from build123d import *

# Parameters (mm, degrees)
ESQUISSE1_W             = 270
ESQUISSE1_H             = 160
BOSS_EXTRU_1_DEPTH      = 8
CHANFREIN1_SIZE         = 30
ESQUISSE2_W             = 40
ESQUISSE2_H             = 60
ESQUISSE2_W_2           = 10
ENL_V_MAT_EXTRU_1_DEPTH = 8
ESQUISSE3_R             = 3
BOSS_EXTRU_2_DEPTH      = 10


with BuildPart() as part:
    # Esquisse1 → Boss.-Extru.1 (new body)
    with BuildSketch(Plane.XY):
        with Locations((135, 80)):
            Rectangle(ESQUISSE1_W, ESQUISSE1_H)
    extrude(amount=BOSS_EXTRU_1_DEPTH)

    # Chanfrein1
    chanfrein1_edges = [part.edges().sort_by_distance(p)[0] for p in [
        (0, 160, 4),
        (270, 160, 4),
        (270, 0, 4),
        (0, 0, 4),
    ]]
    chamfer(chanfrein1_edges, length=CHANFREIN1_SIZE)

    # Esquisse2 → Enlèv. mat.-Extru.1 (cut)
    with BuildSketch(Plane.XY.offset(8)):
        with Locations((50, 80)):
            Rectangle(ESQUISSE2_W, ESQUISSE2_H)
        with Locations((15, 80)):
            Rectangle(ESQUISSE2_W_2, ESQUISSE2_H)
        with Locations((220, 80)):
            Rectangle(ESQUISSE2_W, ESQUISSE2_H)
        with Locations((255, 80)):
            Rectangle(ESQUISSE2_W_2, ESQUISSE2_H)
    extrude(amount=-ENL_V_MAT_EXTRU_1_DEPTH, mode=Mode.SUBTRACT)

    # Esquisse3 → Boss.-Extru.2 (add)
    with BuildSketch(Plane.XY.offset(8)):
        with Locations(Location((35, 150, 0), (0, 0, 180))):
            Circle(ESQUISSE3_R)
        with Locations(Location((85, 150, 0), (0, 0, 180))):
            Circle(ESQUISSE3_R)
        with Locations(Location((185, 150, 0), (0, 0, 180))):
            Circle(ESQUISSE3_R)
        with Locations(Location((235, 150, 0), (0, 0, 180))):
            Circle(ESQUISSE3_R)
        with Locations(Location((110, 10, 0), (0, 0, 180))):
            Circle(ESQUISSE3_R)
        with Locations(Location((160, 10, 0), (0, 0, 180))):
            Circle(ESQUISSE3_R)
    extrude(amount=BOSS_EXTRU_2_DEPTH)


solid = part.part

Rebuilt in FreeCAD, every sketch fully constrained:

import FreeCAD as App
import Part
import Sketcher

V = App.Vector
Q = App.Units.Quantity


def edges_at(feature, points):
    """Names of the edges that pass closest to the given points."""
    edges = feature.Shape.Edges
    near = lambda p: min(range(len(edges)), key=lambda i: edges[i].distToShape(Part.Vertex(*p))[0])
    return sorted({f"Edge{near(p) + 1}" for p in points})

doc = App.newDocument("Part")
params = doc.addObject("Spreadsheet::Sheet", "Params")
for row, (alias, value) in enumerate([
    ("sketch1_width", "270 mm"),
    ("sketch1_height", "160 mm"),
    ("pad1_length", "8 mm"),
    ("chamfer_size", "30 mm"),
    ("sketch2_width", "40 mm"),
    ("sketch2_width2", "10 mm"),
    ("sketch2_height", "60 mm"),
    ("pocket1_length", "8 mm"),
    ("sketch3_diameter", "6 mm"),
    ("pad2_length", "10 mm"),
], start=1):
    params.set(f"A{row}", alias)
    params.set(f"B{row}", "=" + value)
    params.setAlias(f"B{row}", alias)

body = doc.addObject("PartDesign::Body", "Body")

# Sketch on XY plane
sketch1 = body.newObject("Sketcher::SketchObject", "Sketch")
sketch1.AttachmentSupport = (doc.getObject("XY_Plane"), [""])
sketch1.MapMode = "FlatFace"
sketch1.addGeometry([
    Part.LineSegment(V(0, 160, 0), V(0, 0, 0)),
    Part.LineSegment(V(0, 0, 0), V(270, 0, 0)),
    Part.LineSegment(V(270, 0, 0), V(270, 160, 0)),
    Part.LineSegment(V(270, 160, 0), V(0, 160, 0)),
], False)
sketch1.addConstraint([
    Sketcher.Constraint("Coincident", 0, 2, 1, 1),
    Sketcher.Constraint("Coincident", 1, 2, 2, 1),
    Sketcher.Constraint("Coincident", 2, 2, 3, 1),
    Sketcher.Constraint("Coincident", 3, 2, 0, 1),
    Sketcher.Constraint("Vertical", 0),
    Sketcher.Constraint("Horizontal", 1),
    Sketcher.Constraint("Vertical", 2),
    Sketcher.Constraint("Horizontal", 3),
    Sketcher.Constraint("Coincident", 0, 2, -1, 1),
    Sketcher.Constraint("DistanceX", 1, 1, 1, 2, Q("270 mm")),
    Sketcher.Constraint("DistanceY", 0, 2, 0, 1, Q("160 mm")),
])
sketch1.setExpression("Constraints[9]", "Params.sketch1_width")
sketch1.setExpression("Constraints[10]", "Params.sketch1_height")
pad1 = body.newObject("PartDesign::Pad", "Pad")
pad1.Profile = sketch1
pad1.setExpression("Length", "Params.pad1_length")
doc.recompute()

chamfer = body.newObject("PartDesign::Chamfer", "Chamfer")
chamfer.Base = (pad1, edges_at(pad1, [
    (0, 160, 4),
    (270, 160, 4),
    (270, 0, 4),
    (0, 0, 4),
]))
chamfer.setExpression("Size", "Params.chamfer_size")

# Sketch on XY plane
sketch2 = body.newObject("Sketcher::SketchObject", "Sketch001")
sketch2.AttachmentSupport = (doc.getObject("XY_Plane"), [""])
sketch2.MapMode = "FlatFace"
sketch2.AttachmentOffset = App.Placement(V(0, 0, 8), App.Rotation())
sketch2.addGeometry([
    Part.LineSegment(V(30, 110, 0), V(30, 50, 0)),  # 0
    Part.LineSegment(V(30, 50, 0), V(70, 50, 0)),  # 1
    Part.LineSegment(V(70, 50, 0), V(70, 110, 0)),  # 2
    Part.LineSegment(V(70, 110, 0), V(30, 110, 0)),  # 3
    Part.LineSegment(V(10, 110, 0), V(10, 50, 0)),  # 4
    Part.LineSegment(V(10, 50, 0), V(20, 50, 0)),  # 5
    Part.LineSegment(V(20, 50, 0), V(20, 110, 0)),  # 6
    Part.LineSegment(V(20, 110, 0), V(10, 110, 0)),  # 7
    Part.LineSegment(V(200, 110, 0), V(200, 50, 0)),  # 8
    Part.LineSegment(V(200, 50, 0), V(240, 50, 0)),  # 9
    Part.LineSegment(V(240, 50, 0), V(240, 110, 0)),  # 10
    Part.LineSegment(V(240, 110, 0), V(200, 110, 0)),  # 11
    Part.LineSegment(V(250, 110, 0), V(250, 50, 0)),  # 12
    Part.LineSegment(V(250, 50, 0), V(260, 50, 0)),  # 13
    Part.LineSegment(V(260, 50, 0), V(260, 110, 0)),  # 14
    Part.LineSegment(V(260, 110, 0), V(250, 110, 0)),  # 15
], False)
sketch2.addConstraint([
    Sketcher.Constraint("Coincident", 0, 2, 1, 1),
    Sketcher.Constraint("Coincident", 1, 2, 2, 1),
    Sketcher.Constraint("Coincident", 2, 2, 3, 1),
    Sketcher.Constraint("Coincident", 3, 2, 0, 1),
    Sketcher.Constraint("Coincident", 4, 2, 5, 1),
    Sketcher.Constraint("Coincident", 5, 2, 6, 1),
    Sketcher.Constraint("Coincident", 6, 2, 7, 1),
    Sketcher.Constraint("Coincident", 7, 2, 4, 1),
    Sketcher.Constraint("Coincident", 8, 2, 9, 1),
    Sketcher.Constraint("Coincident", 9, 2, 10, 1),
    Sketcher.Constraint("Coincident", 10, 2, 11, 1),
    Sketcher.Constraint("Coincident", 11, 2, 8, 1),
    Sketcher.Constraint("Coincident", 12, 2, 13, 1),
    Sketcher.Constraint("Coincident", 13, 2, 14, 1),
    Sketcher.Constraint("Coincident", 14, 2, 15, 1),
    Sketcher.Constraint("Coincident", 15, 2, 12, 1),
    Sketcher.Constraint("Vertical", 0),
    Sketcher.Constraint("Horizontal", 1),
    Sketcher.Constraint("Vertical", 2),
    Sketcher.Constraint("Horizontal", 3),
    Sketcher.Constraint("Vertical", 4),
    Sketcher.Constraint("Horizontal", 5),
    Sketcher.Constraint("Vertical", 6),
    Sketcher.Constraint("Horizontal", 7),
    Sketcher.Constraint("Vertical", 8),
    Sketcher.Constraint("Horizontal", 9),
    Sketcher.Constraint("Vertical", 10),
    Sketcher.Constraint("Horizontal", 11),
    Sketcher.Constraint("Vertical", 12),
    Sketcher.Constraint("Horizontal", 13),
    Sketcher.Constraint("Vertical", 14),
    Sketcher.Constraint("Horizontal", 15),
    Sketcher.Constraint("Horizontal", 1, 2, 4, 2),
    Sketcher.Constraint("Horizontal", 3, 2, 6, 2),
    Sketcher.Constraint("Horizontal", 5, 2, 8, 2),
    Sketcher.Constraint("Horizontal", 7, 2, 10, 2),
    Sketcher.Constraint("Horizontal", 9, 2, 12, 2),
    Sketcher.Constraint("Horizontal", 11, 2, 14, 2),
    Sketcher.Constraint("Equal", 3, 9),
    Sketcher.Constraint("Equal", 7, 13),
    Sketcher.Constraint("DistanceX", 1, 1, 1, 2, Q("40 mm")),
    Sketcher.Constraint("DistanceX", 5, 1, 5, 2, Q("10 mm")),
    Sketcher.Constraint("DistanceY", 0, 2, 0, 1, Q("60 mm")),
    Sketcher.Constraint("DistanceX", -1, 1, 0, 2, Q("30 mm")),
    Sketcher.Constraint("DistanceY", -1, 1, 0, 2, Q("50 mm")),
    Sketcher.Constraint("DistanceX", -1, 1, 4, 2, Q("10 mm")),
    Sketcher.Constraint("DistanceX", -1, 1, 8, 2, Q("200 mm")),
    Sketcher.Constraint("DistanceX", -1, 1, 12, 2, Q("250 mm")),
])
sketch2.setExpression("Constraints[40]", "Params.sketch2_width")
sketch2.setExpression("Constraints[41]", "Params.sketch2_width2")
sketch2.setExpression("Constraints[42]", "Params.sketch2_height")
pocket1 = body.newObject("PartDesign::Pocket", "Pocket")
pocket1.Profile = sketch2
pocket1.setExpression("Length", "Params.pocket1_length")

# Sketch on XY plane
sketch3 = body.newObject("Sketcher::SketchObject", "Sketch002")
sketch3.AttachmentSupport = (doc.getObject("XY_Plane"), [""])
sketch3.MapMode = "FlatFace"
sketch3.AttachmentOffset = App.Placement(V(0, 0, 8), App.Rotation())
sketch3.addGeometry([
    Part.Circle(V(35, 150, 0), V(0, 0, 1), 3),  # 0
    Part.Circle(V(85, 150, 0), V(0, 0, 1), 3),  # 1
    Part.Circle(V(185, 150, 0), V(0, 0, 1), 3),  # 2
    Part.Circle(V(235, 150, 0), V(0, 0, 1), 3),  # 3
    Part.Circle(V(110, 10, 0), V(0, 0, 1), 3),  # 4
    Part.Circle(V(160, 10, 0), V(0, 0, 1), 3),  # 5
], False)
sketch3.addConstraint([
    Sketcher.Constraint("Equal", 0, 1),
    Sketcher.Constraint("Equal", 1, 2),
    Sketcher.Constraint("Equal", 2, 3),
    Sketcher.Constraint("Equal", 3, 4),
    Sketcher.Constraint("Equal", 4, 5),
    Sketcher.Constraint("Horizontal", 0, 3, 1, 3),
    Sketcher.Constraint("Horizontal", 1, 3, 2, 3),
    Sketcher.Constraint("Horizontal", 2, 3, 3, 3),
    Sketcher.Constraint("Horizontal", 4, 3, 5, 3),
    Sketcher.Constraint("Diameter", 0, Q("6 mm")),
    Sketcher.Constraint("DistanceX", -1, 1, 0, 3, Q("35 mm")),
    Sketcher.Constraint("DistanceY", -1, 1, 0, 3, Q("150 mm")),
    Sketcher.Constraint("DistanceX", -1, 1, 1, 3, Q("85 mm")),
    Sketcher.Constraint("DistanceX", -1, 1, 2, 3, Q("185 mm")),
    Sketcher.Constraint("DistanceX", -1, 1, 3, 3, Q("235 mm")),
    Sketcher.Constraint("DistanceX", -1, 1, 4, 3, Q("110 mm")),
    Sketcher.Constraint("DistanceY", -1, 1, 4, 3, Q("10 mm")),
    Sketcher.Constraint("DistanceX", -1, 1, 5, 3, Q("160 mm")),
])
sketch3.setExpression("Constraints[9]", "Params.sketch3_diameter")
pad2 = body.newObject("PartDesign::Pad", "Pad001")
pad2.Profile = sketch3
pad2.setExpression("Length", "Params.pad2_length")

doc.recompute()
